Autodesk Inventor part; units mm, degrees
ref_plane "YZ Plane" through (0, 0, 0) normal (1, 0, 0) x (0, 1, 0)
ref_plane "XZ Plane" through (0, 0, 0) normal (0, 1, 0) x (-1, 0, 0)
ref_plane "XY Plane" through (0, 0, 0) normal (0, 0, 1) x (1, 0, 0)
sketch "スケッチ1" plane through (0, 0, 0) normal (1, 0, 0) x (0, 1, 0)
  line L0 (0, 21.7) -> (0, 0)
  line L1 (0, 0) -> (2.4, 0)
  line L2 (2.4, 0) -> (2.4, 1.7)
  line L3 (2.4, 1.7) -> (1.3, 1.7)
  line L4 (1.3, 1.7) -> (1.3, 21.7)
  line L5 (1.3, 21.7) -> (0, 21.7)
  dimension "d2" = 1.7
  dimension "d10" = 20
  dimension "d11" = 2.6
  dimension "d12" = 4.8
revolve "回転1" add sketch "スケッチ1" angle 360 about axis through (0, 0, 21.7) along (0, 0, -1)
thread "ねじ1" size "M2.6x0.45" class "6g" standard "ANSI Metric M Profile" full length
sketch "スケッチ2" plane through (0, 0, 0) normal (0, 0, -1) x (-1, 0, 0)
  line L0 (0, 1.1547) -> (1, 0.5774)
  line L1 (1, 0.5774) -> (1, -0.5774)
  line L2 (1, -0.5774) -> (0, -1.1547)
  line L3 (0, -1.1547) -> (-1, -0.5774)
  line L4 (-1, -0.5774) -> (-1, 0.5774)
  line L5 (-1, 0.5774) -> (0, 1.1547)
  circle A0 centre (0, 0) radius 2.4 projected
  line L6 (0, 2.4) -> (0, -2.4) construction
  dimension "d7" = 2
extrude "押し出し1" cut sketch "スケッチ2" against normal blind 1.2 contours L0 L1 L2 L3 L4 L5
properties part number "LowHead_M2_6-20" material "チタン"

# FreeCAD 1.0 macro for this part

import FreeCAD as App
import Part
import Sketcher

V = App.Vector
Q = App.Units.Quantity


def add_polygon(sketch, points):
    """Adds a closed chain of lines whose ends are joined by coincident constraints."""
    first, n = sketch.GeometryCount, len(points)
    for a, b in zip(points, points[1:] + points[:1]):
        sketch.addGeometry(Part.LineSegment(App.Vector(*a, 0), App.Vector(*b, 0)), False)
    for i in range(n):
        sketch.addConstraint(Sketcher.Constraint("Coincident", first + i, 2, first + (i + 1) % n, 1))

doc = App.newDocument("Part")
body = doc.addObject("PartDesign::Body", "Body")

# Sketch on YZ plane
sketch1 = body.newObject("Sketcher::SketchObject", "Sketch")
sketch1.AttachmentSupport = (doc.getObject("YZ_Plane"), [""])
sketch1.MapMode = "FlatFace"
add_polygon(sketch1, [(1.3, 21.7), (0, 21.7), (0, 0), (2.4, 0), (2.4, 1.7), (1.3, 1.7)])  # lines 0-5
sketch1.addConstraint([
    Sketcher.Constraint("Horizontal", 0),
    Sketcher.Constraint("Vertical", 1),
    Sketcher.Constraint("Horizontal", 2),
    Sketcher.Constraint("Vertical", 3),
    Sketcher.Constraint("Horizontal", 4),
    Sketcher.Constraint("Vertical", 5),
    Sketcher.Constraint("Coincident", 1, 2, -1, 1),
    Sketcher.Constraint("DistanceY", 5, 1, 5, 2, Q("20 mm")),
    Sketcher.Constraint("DistanceY", 3, 1, 3, 2, Q("1.7 mm")),
    Sketcher.Constraint("DistanceX", 0, 2, 0, 1, Q("1.3 mm")),
    Sketcher.Constraint("DistanceX", 2, 1, 2, 2, Q("2.4 mm")),
])
revolution = body.newObject("PartDesign::Revolution", "Revolution")
revolution.Profile = sketch1
revolution.ReferenceAxis = (sketch1, ["V_Axis"])
revolution.Angle = 360

# Sketch on XY plane
sketch2 = body.newObject("Sketcher::SketchObject", "Sketch001")
sketch2.AttachmentSupport = (doc.getObject("XY_Plane"), [""])
sketch2.MapMode = "FlatFace"
add_polygon(sketch2, [(-1, 0.6), (0, 1.2), (1, 0.6), (1, -0.6), (0, -1.2), (-1, -0.6)])  # lines 0-5
sketch2.addConstraint([
    Sketcher.Constraint("Vertical", 2),
    Sketcher.Constraint("Vertical", 5),
    Sketcher.Constraint("Symmetric", 0, 2, 3, 2, -1, 1),
    Sketcher.Constraint("Symmetric", 1, 2, 4, 2, -1, 1),
    Sketcher.Constraint("PointOnObject", 0, 2, -2),
    Sketcher.Constraint("Parallel", 0, 3),
    Sketcher.Constraint("Horizontal", 2, 2, 4, 2),
    Sketcher.Constraint("DistanceX", 4, 2, 2, 2, Q("2 mm")),
    Sketcher.Constraint("DistanceY", 2, 2, 2, 1, Q("1.1548 mm")),
    Sketcher.Constraint("DistanceY", 2, 2, 0, 2, Q("1.732 mm")),
])
pocket1 = body.newObject("PartDesign::Pocket", "Pocket")
pocket1.Profile = sketch2
pocket1.Length = 1.2
pocket1.Reversed = True

doc.recompute()
